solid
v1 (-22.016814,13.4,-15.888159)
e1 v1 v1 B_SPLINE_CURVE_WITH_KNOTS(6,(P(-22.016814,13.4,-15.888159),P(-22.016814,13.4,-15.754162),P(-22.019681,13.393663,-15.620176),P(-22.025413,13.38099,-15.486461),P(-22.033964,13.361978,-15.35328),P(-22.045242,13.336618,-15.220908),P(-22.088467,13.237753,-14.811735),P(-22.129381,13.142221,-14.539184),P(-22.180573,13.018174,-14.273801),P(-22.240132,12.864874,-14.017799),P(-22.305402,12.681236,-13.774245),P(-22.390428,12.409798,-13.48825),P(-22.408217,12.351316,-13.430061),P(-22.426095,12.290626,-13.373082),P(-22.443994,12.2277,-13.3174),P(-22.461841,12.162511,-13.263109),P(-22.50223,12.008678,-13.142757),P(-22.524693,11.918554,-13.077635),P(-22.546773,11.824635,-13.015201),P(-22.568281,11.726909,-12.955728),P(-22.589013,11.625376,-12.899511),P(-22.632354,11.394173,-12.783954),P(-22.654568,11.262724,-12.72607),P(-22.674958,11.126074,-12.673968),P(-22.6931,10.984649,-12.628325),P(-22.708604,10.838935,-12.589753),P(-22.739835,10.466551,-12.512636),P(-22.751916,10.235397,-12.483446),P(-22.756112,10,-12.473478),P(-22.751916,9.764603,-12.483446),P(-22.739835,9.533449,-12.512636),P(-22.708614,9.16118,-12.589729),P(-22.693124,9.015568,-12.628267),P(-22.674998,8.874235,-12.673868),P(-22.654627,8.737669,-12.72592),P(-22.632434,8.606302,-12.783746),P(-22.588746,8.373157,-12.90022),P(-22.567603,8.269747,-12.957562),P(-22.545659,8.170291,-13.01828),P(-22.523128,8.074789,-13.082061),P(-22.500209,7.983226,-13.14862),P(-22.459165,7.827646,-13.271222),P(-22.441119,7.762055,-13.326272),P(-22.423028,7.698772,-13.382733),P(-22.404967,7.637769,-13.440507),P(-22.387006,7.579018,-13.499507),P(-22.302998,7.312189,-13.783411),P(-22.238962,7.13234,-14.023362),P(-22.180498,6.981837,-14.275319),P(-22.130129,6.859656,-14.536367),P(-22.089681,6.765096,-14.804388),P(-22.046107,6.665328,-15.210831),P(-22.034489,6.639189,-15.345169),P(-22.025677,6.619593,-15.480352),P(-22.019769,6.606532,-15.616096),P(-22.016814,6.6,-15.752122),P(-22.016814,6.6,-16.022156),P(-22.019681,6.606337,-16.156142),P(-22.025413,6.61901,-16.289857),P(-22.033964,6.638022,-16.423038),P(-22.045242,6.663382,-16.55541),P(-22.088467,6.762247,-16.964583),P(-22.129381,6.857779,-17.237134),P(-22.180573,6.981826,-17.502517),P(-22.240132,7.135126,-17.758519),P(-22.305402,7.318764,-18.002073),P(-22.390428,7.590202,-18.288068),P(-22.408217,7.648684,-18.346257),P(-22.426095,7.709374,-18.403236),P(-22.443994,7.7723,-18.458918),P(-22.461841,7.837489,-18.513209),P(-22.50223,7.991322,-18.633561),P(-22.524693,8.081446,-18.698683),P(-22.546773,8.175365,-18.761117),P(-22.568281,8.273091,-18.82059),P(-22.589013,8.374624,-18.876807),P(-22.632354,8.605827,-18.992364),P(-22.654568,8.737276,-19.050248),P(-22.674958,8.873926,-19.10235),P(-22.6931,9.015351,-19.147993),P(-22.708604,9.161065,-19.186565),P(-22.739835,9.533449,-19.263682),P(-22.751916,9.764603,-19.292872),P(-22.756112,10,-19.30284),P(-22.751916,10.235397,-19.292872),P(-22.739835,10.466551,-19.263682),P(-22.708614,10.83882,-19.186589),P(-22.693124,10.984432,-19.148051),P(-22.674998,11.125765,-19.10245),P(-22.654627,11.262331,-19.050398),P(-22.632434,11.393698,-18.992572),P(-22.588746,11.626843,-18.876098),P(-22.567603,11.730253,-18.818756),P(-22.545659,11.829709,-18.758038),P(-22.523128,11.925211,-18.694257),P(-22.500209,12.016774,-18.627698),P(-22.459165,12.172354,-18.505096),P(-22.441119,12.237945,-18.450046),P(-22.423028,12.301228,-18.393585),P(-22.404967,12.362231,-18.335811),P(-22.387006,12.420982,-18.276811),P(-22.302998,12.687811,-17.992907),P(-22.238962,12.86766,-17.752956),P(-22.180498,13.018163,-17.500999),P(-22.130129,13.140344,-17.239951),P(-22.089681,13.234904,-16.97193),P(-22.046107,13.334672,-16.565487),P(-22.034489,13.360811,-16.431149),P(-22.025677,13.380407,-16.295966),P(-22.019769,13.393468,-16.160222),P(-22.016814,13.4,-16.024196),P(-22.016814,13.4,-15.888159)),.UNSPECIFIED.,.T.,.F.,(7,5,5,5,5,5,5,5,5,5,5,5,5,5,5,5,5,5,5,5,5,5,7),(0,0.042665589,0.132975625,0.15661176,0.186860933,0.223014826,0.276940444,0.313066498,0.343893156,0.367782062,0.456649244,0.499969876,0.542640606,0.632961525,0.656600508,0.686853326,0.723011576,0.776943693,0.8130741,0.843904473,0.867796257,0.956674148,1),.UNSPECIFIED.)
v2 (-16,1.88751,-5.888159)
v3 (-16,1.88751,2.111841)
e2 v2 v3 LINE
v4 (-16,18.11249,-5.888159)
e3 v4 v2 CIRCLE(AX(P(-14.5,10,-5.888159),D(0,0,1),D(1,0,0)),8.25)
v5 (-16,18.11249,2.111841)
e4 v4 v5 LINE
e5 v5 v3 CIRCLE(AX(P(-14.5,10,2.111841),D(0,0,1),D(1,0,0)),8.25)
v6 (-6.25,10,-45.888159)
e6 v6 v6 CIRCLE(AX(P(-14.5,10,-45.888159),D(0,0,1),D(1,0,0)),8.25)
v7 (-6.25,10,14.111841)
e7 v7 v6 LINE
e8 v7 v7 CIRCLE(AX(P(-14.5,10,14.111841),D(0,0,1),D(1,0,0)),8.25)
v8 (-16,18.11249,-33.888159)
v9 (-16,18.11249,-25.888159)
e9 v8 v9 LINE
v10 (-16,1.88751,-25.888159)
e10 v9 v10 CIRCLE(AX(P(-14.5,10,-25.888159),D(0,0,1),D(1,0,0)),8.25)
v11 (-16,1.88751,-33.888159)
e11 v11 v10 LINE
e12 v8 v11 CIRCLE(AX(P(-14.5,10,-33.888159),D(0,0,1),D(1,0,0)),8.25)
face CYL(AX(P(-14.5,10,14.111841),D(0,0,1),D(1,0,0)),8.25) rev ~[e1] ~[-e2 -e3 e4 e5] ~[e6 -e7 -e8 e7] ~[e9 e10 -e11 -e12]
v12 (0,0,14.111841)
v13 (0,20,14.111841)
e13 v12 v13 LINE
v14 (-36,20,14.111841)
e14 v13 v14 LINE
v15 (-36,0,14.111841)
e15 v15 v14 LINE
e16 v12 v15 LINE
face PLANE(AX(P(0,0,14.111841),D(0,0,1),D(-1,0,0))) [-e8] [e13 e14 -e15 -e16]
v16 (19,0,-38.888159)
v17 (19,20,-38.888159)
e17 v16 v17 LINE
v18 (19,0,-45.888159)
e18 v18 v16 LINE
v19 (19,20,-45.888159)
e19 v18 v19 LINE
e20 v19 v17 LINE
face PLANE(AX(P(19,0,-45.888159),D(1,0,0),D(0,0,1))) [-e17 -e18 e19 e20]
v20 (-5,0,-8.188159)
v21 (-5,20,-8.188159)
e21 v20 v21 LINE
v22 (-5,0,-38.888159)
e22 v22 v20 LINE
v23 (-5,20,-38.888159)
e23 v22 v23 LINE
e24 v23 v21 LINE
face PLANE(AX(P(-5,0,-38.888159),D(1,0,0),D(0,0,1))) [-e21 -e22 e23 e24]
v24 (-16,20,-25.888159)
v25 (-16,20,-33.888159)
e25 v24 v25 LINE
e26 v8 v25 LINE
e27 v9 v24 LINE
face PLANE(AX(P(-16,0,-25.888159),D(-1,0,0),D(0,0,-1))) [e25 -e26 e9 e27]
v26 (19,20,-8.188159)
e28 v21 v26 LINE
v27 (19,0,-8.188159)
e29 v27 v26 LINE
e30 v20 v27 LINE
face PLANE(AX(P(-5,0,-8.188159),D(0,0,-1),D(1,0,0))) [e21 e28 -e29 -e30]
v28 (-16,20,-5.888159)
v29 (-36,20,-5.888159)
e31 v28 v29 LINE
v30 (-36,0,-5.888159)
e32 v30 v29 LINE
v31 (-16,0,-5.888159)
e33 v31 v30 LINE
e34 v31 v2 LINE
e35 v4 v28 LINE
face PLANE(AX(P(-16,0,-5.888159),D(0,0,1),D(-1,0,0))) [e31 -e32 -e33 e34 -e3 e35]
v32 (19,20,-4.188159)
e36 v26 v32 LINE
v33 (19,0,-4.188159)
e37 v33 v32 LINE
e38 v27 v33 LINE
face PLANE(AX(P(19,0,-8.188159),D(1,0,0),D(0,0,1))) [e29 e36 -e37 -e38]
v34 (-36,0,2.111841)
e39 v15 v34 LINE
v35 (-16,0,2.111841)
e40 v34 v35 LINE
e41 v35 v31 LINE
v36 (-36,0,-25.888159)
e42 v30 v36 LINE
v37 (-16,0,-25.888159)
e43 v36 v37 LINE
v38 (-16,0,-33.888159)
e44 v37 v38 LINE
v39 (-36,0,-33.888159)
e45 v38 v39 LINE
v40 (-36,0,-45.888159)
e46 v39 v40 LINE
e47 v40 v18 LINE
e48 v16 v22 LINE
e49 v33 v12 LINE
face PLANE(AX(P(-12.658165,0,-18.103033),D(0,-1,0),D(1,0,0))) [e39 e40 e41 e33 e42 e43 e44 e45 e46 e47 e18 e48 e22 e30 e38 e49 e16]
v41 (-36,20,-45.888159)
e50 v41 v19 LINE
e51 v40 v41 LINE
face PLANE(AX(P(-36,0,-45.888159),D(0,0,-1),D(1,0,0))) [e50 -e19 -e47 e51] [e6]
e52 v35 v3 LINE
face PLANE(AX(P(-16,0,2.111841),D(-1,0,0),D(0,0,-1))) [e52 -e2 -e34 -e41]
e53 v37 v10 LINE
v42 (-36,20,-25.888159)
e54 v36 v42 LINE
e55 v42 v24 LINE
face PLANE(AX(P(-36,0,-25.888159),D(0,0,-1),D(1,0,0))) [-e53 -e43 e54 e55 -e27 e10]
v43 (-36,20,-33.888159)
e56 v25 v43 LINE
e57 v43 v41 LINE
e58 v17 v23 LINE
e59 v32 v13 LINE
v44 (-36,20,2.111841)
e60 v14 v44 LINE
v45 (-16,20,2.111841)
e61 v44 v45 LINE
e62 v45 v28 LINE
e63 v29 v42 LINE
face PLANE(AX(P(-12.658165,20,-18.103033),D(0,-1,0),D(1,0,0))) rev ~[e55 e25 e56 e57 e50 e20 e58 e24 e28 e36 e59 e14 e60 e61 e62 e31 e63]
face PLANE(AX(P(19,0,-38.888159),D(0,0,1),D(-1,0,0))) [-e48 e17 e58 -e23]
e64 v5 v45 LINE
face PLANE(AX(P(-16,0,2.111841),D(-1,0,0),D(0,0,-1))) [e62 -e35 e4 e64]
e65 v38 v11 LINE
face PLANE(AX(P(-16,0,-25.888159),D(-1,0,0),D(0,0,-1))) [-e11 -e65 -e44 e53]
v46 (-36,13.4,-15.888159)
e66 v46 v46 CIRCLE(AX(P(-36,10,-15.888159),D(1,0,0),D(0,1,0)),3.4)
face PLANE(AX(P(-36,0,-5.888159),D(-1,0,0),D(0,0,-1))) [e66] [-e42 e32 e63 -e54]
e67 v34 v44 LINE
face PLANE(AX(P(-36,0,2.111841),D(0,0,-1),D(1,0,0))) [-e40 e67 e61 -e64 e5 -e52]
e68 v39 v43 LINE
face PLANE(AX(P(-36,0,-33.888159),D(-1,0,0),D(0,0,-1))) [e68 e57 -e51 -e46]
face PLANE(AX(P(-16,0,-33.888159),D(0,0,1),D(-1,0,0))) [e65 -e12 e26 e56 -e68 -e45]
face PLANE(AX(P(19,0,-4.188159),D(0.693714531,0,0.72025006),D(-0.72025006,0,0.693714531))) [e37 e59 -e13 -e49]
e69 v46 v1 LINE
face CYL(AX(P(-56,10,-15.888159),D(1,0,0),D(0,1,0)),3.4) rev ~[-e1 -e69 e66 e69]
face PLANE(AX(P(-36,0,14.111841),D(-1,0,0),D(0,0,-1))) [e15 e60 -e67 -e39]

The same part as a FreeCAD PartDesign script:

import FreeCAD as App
import Part
import Sketcher


def add_polygon(sketch, points):
    """Adds a closed chain of lines whose ends are joined by coincident constraints."""
    first, n = sketch.GeometryCount, len(points)
    for a, b in zip(points, points[1:] + points[:1]):
        sketch.addGeometry(Part.LineSegment(App.Vector(*a, 0), App.Vector(*b, 0)), False)
    for i in range(n):
        sketch.addConstraint(Sketcher.Constraint("Coincident", first + i, 2, first + (i + 1) % n, 1))

doc = App.newDocument("Part")
body = doc.addObject("PartDesign::Body", "Body")

# Sketch on XZ plane
sketch1 = body.newObject("Sketcher::SketchObject", "Sketch")
sketch1.AttachmentSupport = (doc.getObject("XZ_Plane"), [""])
sketch1.MapMode = "FlatFace"
add_polygon(sketch1, [(-36, -33.888159), (-36, -45.888159), (19, -45.888159), (19, -38.888159), (-5, -38.888159), (-5, -8.188159), (19, -8.188159), (19, -4.188159), (0, 14.111841), (-36, 14.111841), (-36, 2.111841), (-16, 2.111841), (-16, -5.888159), (-36, -5.888159), (-36, -25.888159), (-16, -25.888159), (-16, -33.888159)])  # lines 0-16
sketch1.addConstraint([
    Sketcher.Constraint("Vertical", 0),
    Sketcher.Constraint("Horizontal", 1),
    Sketcher.Constraint("Vertical", 2),
    Sketcher.Constraint("Horizontal", 3),
    Sketcher.Constraint("Vertical", 4),
    Sketcher.Constraint("Horizontal", 5),
    Sketcher.Constraint("Vertical", 6),
    Sketcher.Constraint("Horizontal", 8),
    Sketcher.Constraint("Vertical", 9),
    Sketcher.Constraint("Horizontal", 10),
    Sketcher.Constraint("Vertical", 11),
    Sketcher.Constraint("Horizontal", 12),
    Sketcher.Constraint("Vertical", 13),
    Sketcher.Constraint("Horizontal", 14),
    Sketcher.Constraint("Vertical", 15),
    Sketcher.Constraint("Horizontal", 16),
    Sketcher.Constraint("PointOnObject", 7, 2, -2),
    Sketcher.Constraint("Vertical", 2, 2, 5, 2),
    Sketcher.Constraint("Vertical", 0, 2, 8, 2),
    Sketcher.Constraint("Vertical", 9, 2, 12, 2),
    Sketcher.Constraint("Vertical", 11, 2, 14, 2),
    Sketcher.Constraint("Equal", 0, 9),
    Sketcher.Constraint("Equal", 16, 13),
    Sketcher.Constraint("Equal", 11, 15),
    Sketcher.Constraint("DistanceX", 1, 1, 1, 2, 55.0),
    Sketcher.Constraint("DistanceX", 3, 2, 3, 1, 24.0),
    Sketcher.Constraint("DistanceX", 8, 2, 8, 1, 36.0),
    Sketcher.Constraint("DistanceX", 10, 1, 10, 2, 20.0),
    Sketcher.Constraint("DistanceY", 0, 2, 0, 1, 12.0),
    Sketcher.Constraint("DistanceY", 2, 1, 2, 2, 7.0),
    Sketcher.Constraint("DistanceY", 6, 1, 6, 2, 4.0),
    Sketcher.Constraint("DistanceY", 11, 2, 11, 1, 8.0),
    Sketcher.Constraint("DistanceY", 4, 1, 4, 2, 30.7),
    Sketcher.Constraint("DistanceY", 0, 2, -1, 1, 45.888159),
])
pad1 = body.newObject("PartDesign::Pad", "Pad")
pad1.Profile = sketch1
pad1.Length = 20
pad1.Reversed = True

# Sketch on XY plane
sketch2 = body.newObject("Sketcher::SketchObject", "Sketch001")
sketch2.AttachmentSupport = (doc.getObject("XY_Plane"), [""])
sketch2.MapMode = "FlatFace"
sketch2.AttachmentOffset = App.Placement(App.Vector(0, 0, 14.111841), App.Rotation())
sketch2.addGeometry(Part.Circle(App.Vector(-14.5, 10, 0), App.Vector(0, 0, 1), 8.25), False)
sketch2.addConstraint([
    Sketcher.Constraint("Diameter", 0, 16.5),
    Sketcher.Constraint("DistanceY", -1, 1, 0, 3, 10.0),
    Sketcher.Constraint("DistanceX", 0, 3, -1, 1, 14.5),
])
pocket1 = body.newObject("PartDesign::Pocket", "Pocket")
pocket1.Profile = sketch2
pocket1.Type = "ThroughAll"

# Sketch on YZ plane
sketch3 = body.newObject("Sketcher::SketchObject", "Sketch002")
sketch3.AttachmentSupport = (doc.getObject("YZ_Plane"), [""])
sketch3.MapMode = "FlatFace"
sketch3.AttachmentOffset = App.Placement(App.Vector(0, 0, -36), App.Rotation())
sketch3.addGeometry(Part.Circle(App.Vector(10, -15.888159, 0), App.Vector(0, 0, 1), 3.4), False)
sketch3.addConstraint([
    Sketcher.Constraint("Diameter", 0, 6.8),
    Sketcher.Constraint("DistanceX", -1, 1, 0, 3, 10.0),
    Sketcher.Constraint("DistanceY", 0, 3, -1, 1, 15.888159),
])
doc.recompute()
hole = body.newObject("PartDesign::Hole", "Hole")
hole.Profile = sketch3
hole.ThreadType = "None"
hole.Diameter = 6.8
hole.DepthType = "Dimension"
hole.Depth = 20
hole.DrillPoint = "Flat"
hole.Reversed = True

doc.recompute()
